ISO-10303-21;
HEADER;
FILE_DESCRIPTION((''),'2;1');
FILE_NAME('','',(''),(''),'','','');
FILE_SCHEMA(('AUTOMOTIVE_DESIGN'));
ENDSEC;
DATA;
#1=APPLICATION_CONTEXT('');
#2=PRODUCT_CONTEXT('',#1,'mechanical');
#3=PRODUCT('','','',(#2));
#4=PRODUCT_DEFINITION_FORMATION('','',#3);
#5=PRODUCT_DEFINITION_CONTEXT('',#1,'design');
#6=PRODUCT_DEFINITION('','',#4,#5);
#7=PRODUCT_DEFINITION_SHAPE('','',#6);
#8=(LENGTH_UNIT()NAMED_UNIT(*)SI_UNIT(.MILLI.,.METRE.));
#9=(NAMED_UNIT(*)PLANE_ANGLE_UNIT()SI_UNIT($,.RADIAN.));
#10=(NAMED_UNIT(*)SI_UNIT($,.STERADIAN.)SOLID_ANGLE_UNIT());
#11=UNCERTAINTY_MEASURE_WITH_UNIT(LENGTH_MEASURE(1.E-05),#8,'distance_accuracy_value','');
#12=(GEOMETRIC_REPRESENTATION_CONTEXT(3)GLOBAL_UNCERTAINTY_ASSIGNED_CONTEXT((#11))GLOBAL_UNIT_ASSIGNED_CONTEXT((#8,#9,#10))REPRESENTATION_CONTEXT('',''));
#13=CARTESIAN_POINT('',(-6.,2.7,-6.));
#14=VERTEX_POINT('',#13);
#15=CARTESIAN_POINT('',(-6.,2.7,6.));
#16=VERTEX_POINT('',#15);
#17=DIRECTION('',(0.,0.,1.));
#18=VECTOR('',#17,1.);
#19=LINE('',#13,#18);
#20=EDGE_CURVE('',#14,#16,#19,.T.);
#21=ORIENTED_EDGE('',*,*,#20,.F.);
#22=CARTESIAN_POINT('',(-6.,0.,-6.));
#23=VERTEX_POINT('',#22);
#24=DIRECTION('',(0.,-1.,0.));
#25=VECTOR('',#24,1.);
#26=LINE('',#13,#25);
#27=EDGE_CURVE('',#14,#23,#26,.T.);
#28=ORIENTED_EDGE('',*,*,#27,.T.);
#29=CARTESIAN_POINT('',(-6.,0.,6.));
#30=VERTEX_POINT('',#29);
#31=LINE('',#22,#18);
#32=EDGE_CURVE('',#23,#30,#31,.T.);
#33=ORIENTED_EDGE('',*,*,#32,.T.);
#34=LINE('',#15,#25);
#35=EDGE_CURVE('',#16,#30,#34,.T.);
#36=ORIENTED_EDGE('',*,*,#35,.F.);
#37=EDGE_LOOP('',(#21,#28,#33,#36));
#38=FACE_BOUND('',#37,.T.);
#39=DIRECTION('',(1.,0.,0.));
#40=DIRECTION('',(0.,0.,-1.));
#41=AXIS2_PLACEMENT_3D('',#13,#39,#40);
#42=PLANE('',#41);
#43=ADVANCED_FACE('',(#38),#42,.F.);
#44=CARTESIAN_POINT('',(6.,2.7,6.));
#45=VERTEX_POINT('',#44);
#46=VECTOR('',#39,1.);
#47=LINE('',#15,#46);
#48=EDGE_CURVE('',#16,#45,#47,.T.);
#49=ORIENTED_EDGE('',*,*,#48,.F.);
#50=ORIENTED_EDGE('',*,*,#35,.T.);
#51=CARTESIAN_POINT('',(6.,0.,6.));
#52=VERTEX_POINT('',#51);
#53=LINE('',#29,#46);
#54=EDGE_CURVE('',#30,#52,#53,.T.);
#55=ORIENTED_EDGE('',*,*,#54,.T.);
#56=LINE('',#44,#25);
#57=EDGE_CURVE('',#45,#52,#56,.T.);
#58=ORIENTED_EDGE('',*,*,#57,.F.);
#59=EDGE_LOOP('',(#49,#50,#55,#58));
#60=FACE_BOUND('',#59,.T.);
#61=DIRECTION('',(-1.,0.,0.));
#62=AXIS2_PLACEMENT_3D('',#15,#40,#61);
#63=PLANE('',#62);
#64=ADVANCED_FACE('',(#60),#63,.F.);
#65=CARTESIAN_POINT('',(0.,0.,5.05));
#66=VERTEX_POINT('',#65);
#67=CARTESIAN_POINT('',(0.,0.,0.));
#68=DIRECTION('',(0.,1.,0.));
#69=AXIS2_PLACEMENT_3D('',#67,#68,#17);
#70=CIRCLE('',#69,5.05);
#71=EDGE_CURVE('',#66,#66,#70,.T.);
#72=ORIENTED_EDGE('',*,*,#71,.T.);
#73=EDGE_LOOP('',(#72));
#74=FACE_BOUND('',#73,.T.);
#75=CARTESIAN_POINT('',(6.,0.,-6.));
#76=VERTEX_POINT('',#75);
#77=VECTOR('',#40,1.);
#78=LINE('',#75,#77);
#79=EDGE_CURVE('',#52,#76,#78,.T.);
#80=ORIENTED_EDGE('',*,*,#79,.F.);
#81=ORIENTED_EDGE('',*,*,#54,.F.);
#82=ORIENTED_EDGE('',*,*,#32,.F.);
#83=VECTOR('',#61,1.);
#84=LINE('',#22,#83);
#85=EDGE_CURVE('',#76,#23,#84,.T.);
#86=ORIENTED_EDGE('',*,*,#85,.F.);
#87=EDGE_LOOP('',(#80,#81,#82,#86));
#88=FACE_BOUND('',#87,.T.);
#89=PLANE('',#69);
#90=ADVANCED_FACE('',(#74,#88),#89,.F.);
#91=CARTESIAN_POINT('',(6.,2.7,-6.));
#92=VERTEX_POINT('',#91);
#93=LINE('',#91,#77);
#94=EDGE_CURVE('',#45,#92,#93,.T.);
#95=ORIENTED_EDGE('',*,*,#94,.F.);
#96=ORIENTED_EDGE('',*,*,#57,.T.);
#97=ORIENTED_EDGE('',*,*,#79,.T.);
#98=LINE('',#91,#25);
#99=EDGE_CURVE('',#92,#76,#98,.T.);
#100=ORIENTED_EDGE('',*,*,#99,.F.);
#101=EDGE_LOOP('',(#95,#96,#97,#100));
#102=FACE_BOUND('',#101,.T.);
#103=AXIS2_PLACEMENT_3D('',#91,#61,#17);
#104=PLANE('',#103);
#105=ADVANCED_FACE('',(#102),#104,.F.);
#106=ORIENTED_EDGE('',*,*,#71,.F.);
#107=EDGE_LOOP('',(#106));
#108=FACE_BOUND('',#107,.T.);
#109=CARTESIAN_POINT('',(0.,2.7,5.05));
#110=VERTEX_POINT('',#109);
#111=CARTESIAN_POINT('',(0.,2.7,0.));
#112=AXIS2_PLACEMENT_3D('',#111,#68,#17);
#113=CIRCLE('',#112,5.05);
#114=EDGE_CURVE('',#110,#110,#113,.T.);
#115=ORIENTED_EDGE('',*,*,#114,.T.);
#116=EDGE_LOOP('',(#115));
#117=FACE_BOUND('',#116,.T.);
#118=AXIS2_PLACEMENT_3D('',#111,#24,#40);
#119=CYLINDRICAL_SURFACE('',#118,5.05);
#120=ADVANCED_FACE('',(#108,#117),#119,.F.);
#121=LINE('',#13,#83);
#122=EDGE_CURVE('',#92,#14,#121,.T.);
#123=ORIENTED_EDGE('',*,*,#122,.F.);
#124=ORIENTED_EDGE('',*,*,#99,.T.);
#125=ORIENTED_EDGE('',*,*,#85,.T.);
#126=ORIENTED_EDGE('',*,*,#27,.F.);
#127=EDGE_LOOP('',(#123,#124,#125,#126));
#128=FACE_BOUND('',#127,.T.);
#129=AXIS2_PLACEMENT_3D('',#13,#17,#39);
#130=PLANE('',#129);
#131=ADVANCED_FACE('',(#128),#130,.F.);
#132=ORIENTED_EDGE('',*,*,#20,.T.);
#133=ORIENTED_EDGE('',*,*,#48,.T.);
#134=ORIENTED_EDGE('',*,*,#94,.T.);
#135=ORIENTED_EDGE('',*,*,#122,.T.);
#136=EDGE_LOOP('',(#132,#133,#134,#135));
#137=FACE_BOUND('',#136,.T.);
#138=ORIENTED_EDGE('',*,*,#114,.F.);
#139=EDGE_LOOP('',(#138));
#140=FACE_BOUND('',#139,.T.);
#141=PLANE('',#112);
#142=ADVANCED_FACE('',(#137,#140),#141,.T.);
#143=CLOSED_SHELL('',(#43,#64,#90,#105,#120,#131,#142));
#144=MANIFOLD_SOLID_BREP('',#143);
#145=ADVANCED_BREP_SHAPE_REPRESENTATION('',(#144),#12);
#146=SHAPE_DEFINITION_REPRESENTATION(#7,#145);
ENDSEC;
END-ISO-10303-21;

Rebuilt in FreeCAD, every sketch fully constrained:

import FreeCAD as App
import Part
import Sketcher

V = App.Vector


def add_polygon(sketch, points):
    """Adds a closed chain of lines whose ends are joined by coincident constraints."""
    first, n = sketch.GeometryCount, len(points)
    for a, b in zip(points, points[1:] + points[:1]):
        sketch.addGeometry(Part.LineSegment(App.Vector(*a, 0), App.Vector(*b, 0)), False)
    for i in range(n):
        sketch.addConstraint(Sketcher.Constraint("Coincident", first + i, 2, first + (i + 1) % n, 1))

doc = App.newDocument("Part")
body = doc.addObject("PartDesign::Body", "Body")

sketch1 = body.newObject("Sketcher::SketchObject", "Sketch")
sketch1.AttachmentSupport = (doc.getObject("XZ_Plane"), [""])
sketch1.MapMode = "FlatFace"
add_polygon(sketch1, [(-6, -6), (-6, 6), (6, 6), (6, -6)])
sketch1.addGeometry(Part.Circle(V(0, 0, 0), V(0, 0, 1), 5.05), False)
sketch1.addConstraint([
    Sketcher.Constraint("Vertical", 0),
    Sketcher.Constraint("Horizontal", 1),
    Sketcher.Constraint("Vertical", 2),
    Sketcher.Constraint("Horizontal", 3),
    Sketcher.Constraint("Coincident", 4, 3, -1, 1),
    Sketcher.Constraint("Symmetric", 0, 2, 2, 2, -1, 1),
    Sketcher.Constraint("Equal", 3, 0),
    Sketcher.Constraint("Diameter", 4, 10.1),
    Sketcher.Constraint("DistanceX", 1, 1, 1, 2, 12.0),
])
pad1 = body.newObject("PartDesign::Pad", "Pad")
pad1.Profile = sketch1
pad1.Length = 2.7
pad1.Reversed = True

doc.recompute()
